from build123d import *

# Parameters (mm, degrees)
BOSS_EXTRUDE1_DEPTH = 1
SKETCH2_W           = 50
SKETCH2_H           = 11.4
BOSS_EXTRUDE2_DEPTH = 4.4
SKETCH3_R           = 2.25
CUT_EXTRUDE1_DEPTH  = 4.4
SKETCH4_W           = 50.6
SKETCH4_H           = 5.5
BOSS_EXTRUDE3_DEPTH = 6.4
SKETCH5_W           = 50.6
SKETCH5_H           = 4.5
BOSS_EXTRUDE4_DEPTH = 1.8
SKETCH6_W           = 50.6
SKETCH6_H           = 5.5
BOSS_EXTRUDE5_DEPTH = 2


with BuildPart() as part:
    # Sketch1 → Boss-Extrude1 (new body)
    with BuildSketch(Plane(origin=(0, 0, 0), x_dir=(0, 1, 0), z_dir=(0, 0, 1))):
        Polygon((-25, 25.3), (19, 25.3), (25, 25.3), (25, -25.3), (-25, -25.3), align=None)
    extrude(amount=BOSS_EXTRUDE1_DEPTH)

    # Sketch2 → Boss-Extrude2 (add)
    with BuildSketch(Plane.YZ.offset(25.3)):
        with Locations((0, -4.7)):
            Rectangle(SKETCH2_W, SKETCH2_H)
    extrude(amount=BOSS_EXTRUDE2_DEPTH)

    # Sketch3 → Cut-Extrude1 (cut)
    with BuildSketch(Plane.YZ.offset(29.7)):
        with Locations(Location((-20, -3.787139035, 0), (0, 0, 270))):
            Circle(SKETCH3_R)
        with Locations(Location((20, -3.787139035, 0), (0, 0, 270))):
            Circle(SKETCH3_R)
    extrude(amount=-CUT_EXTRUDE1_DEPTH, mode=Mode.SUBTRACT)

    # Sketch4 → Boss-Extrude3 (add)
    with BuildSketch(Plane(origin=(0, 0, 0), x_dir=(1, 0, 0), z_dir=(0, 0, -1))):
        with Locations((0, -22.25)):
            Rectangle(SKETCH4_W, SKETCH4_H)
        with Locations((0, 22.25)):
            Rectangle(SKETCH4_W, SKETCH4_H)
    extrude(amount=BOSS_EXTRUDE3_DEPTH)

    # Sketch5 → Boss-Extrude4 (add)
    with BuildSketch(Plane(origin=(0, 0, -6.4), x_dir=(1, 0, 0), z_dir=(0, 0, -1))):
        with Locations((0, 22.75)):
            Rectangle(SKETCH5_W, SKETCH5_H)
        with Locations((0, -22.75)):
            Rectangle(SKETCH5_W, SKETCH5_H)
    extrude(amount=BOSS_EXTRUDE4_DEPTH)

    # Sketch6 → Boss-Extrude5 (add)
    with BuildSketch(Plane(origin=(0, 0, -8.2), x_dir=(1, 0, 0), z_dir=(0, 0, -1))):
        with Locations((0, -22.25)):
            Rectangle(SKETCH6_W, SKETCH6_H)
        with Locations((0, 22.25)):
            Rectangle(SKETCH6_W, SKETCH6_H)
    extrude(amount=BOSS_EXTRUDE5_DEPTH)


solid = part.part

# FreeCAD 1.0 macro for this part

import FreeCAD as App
import Part
import Sketcher
from FreeCAD import Vector
Q = App.Units.Quantity


def add_polygon(sketch, points):
    """Adds a closed chain of lines whose ends are joined by coincident constraints."""
    first, n = sketch.GeometryCount, len(points)
    for a, b in zip(points, points[1:] + points[:1]):
        sketch.addGeometry(Part.LineSegment(App.Vector(*a, 0), App.Vector(*b, 0)), False)
    for i in range(n):
        sketch.addConstraint(Sketcher.Constraint("Coincident", first + i, 2, first + (i + 1) % n, 1))

doc = App.newDocument("Part")
body = doc.addObject("PartDesign::Body", "Body")

sketch1 = body.newObject("Sketcher::SketchObject", "Sketch")
sketch1.AttachmentSupport = (doc.getObject("XY_Plane"), [""])
sketch1.MapMode = "FlatFace"
add_polygon(sketch1, [(-25, 25), (-25, -25), (25, -25), (25, 25)])
sketch1.addConstraint([
    Sketcher.Constraint("Vertical", 0),
    Sketcher.Constraint("Horizontal", 1),
    Sketcher.Constraint("Vertical", 2),
    Sketcher.Constraint("Horizontal", 3),
    Sketcher.Constraint("Symmetric", 0, 2, 2, 2, -1, 1),
    Sketcher.Constraint("DistanceY", 0, 2, 0, 1, Q("50 mm")),
    Sketcher.Constraint("DistanceX", 1, 1, 1, 2, Q("50.6 mm")),
])
pad1 = body.newObject("PartDesign::Pad", "Pad")
pad1.Profile = sketch1
pad1.Length = 1

sketch2 = body.newObject("Sketcher::SketchObject", "Sketch001")
sketch2.AttachmentSupport = (doc.getObject("YZ_Plane"), [""])
sketch2.MapMode = "FlatFace"
sketch2.AttachmentOffset = App.Placement(Vector(0, 0, 25.3), App.Rotation())
add_polygon(sketch2, [(-25, 1), (-25, -10), (25, -10), (25, 1)])
sketch2.addConstraint([
    Sketcher.Constraint("Vertical", 0),
    Sketcher.Constraint("Horizontal", 1),
    Sketcher.Constraint("Vertical", 2),
    Sketcher.Constraint("Horizontal", 3),
    Sketcher.Constraint("DistanceX", 1, 1, 1, 2, Q("50 mm")),
    Sketcher.Constraint("DistanceY", 0, 2, 0, 1, Q("11.4 mm")),
    Sketcher.Constraint("DistanceX", 0, 2, -1, 1, Q("25 mm")),
    Sketcher.Constraint("DistanceY", -1, 1, 2, 2, Q("1 mm")),
])
pad2 = body.newObject("PartDesign::Pad", "Pad001")
pad2.Profile = sketch2
pad2.Length = 4.4

sketch3 = body.newObject("Sketcher::SketchObject", "Sketch002")
sketch3.AttachmentSupport = (doc.getObject("YZ_Plane"), [""])
sketch3.MapMode = "FlatFace"
sketch3.AttachmentOffset = App.Placement(Vector(0, 0, 29.7), App.Rotation())
sketch3.addGeometry([
    Part.Circle(Vector(-20, -3.8, 0), Vector(0, 0, 1), 2.2),
    Part.Circle(Vector(20, -3.8, 0), Vector(0, 0, 1), 2.2),
], False)
sketch3.addConstraint([
    Sketcher.Constraint("Equal", 0, 1),
    Sketcher.Constraint("Symmetric", 0, 3, 1, 3, -2),
    Sketcher.Constraint("Diameter", 0, Q("4.5 mm")),
    Sketcher.Constraint("DistanceX", 0, 3, -1, 1, Q("20 mm")),
    Sketcher.Constraint("DistanceY", 0, 3, -1, 1, Q("3.787139 mm")),
])
pocket1 = body.newObject("PartDesign::Pocket", "Pocket")
pocket1.Profile = sketch3
pocket1.Length = 4.4

sketch4 = body.newObject("Sketcher::SketchObject", "Sketch003")
sketch4.AttachmentSupport = (doc.getObject("XY_Plane"), [""])
sketch4.MapMode = "FlatFace"
add_polygon(sketch4, [(-25, 20), (-25, 25), (25, 25), (25, 20)])
add_polygon(sketch4, [(-25, -25), (-25, -20), (25, -20), (25, -25)])
sketch4.addConstraint([
    Sketcher.Constraint("Vertical", 0),
    Sketcher.Constraint("Horizontal", 1),
    Sketcher.Constraint("Vertical", 2),
    Sketcher.Constraint("Horizontal", 3),
    Sketcher.Constraint("Vertical", 4),
    Sketcher.Constraint("Horizontal", 5),
    Sketcher.Constraint("Vertical", 6),
    Sketcher.Constraint("Horizontal", 7),
    Sketcher.Constraint("Symmetric", 2, 2, 4, 2, -1, 1),
    Sketcher.Constraint("Symmetric", 0, 2, 6, 2, -1, 1),
    Sketcher.Constraint("Vertical", 3, 2, 4, 2),
    Sketcher.Constraint("DistanceX", 1, 1, 1, 2, Q("50.6 mm")),
    Sketcher.Constraint("DistanceY", 0, 1, 0, 2, Q("5.5 mm")),
    Sketcher.Constraint("DistanceY", -1, 1, 0, 2, Q("25 mm")),
])
pad3 = body.newObject("PartDesign::Pad", "Pad002")
pad3.Profile = sketch4
pad3.Length = 6.4
pad3.Reversed = True

sketch5 = body.newObject("Sketcher::SketchObject", "Sketch004")
sketch5.AttachmentSupport = (doc.getObject("XY_Plane"), [""])
sketch5.MapMode = "FlatFace"
sketch5.AttachmentOffset = App.Placement(Vector(0, 0, -6.4), App.Rotation())
add_polygon(sketch5, [(-25.3, -25), (-25.3, -20.5), (25.3, -20.5), (25.3, -25)])
add_polygon(sketch5, [(-25.3, 20.5), (-25.3, 25), (25.3, 25), (25.3, 20.5)])
sketch5.addConstraint([
    Sketcher.Constraint("Vertical", 0),
    Sketcher.Constraint("Horizontal", 1),
    Sketcher.Constraint("Vertical", 2),
    Sketcher.Constraint("Horizontal", 3),
    Sketcher.Constraint("Vertical", 4),
    Sketcher.Constraint("Horizontal", 5),
    Sketcher.Constraint("Vertical", 6),
    Sketcher.Constraint("Horizontal", 7),
    Sketcher.Constraint("Symmetric", 2, 2, 4, 2, -1, 1),
    Sketcher.Constraint("Symmetric", 0, 2, 6, 2, -1, 1),
    Sketcher.Constraint("Vertical", 3, 2, 4, 2),
    Sketcher.Constraint("DistanceX", 1, 1, 1, 2, Q("50.6 mm")),
    Sketcher.Constraint("DistanceY", 0, 1, 0, 2, Q("4.5 mm")),
    Sketcher.Constraint("DistanceY", 2, 2, -1, 1, Q("25 mm")),
])
pad4 = body.newObject("PartDesign::Pad", "Pad003")
pad4.Profile = sketch5
pad4.Length = 1.8
pad4.Reversed = True

sketch6 = body.newObject("Sketcher::SketchObject", "Sketch005")
sketch6.AttachmentSupport = (doc.getObject("XY_Plane"), [""])
sketch6.MapMode = "FlatFace"
sketch6.AttachmentOffset = App.Placement(Vector(0, 0, -8.2), App.Rotation())
add_polygon(sketch6, [(-25, 20), (-25, 25), (25, 25), (25, 20)])
add_polygon(sketch6, [(-25, -25), (-25, -20), (25, -20), (25, -25)])
sketch6.addConstraint([
    Sketcher.Constraint("Vertical", 0),
    Sketcher.Constraint("Horizontal", 1),
    Sketcher.Constraint("Vertical", 2),
    Sketcher.Constraint("Horizontal", 3),
    Sketcher.Constraint("Vertical", 4),
    Sketcher.Constraint("Horizontal", 5),
    Sketcher.Constraint("Vertical", 6),
    Sketcher.Constraint("Horizontal", 7),
    Sketcher.Constraint("Symmetric", 2, 2, 4, 2, -1, 1),
    Sketcher.Constraint("Symmetric", 0, 2, 6, 2, -1, 1),
    Sketcher.Constraint("Vertical", 3, 2, 4, 2),
    Sketcher.Constraint("DistanceX", 1, 1, 1, 2, Q("50.6 mm")),
    Sketcher.Constraint("DistanceY", 0, 1, 0, 2, Q("5.5 mm")),
    Sketcher.Constraint("DistanceY", -1, 1, 0, 2, Q("25 mm")),
])
pad5 = body.newObject("PartDesign::Pad", "Pad004")
pad5.Profile = sketch6
pad5.Length = 2
pad5.Reversed = True

doc.recompute()
